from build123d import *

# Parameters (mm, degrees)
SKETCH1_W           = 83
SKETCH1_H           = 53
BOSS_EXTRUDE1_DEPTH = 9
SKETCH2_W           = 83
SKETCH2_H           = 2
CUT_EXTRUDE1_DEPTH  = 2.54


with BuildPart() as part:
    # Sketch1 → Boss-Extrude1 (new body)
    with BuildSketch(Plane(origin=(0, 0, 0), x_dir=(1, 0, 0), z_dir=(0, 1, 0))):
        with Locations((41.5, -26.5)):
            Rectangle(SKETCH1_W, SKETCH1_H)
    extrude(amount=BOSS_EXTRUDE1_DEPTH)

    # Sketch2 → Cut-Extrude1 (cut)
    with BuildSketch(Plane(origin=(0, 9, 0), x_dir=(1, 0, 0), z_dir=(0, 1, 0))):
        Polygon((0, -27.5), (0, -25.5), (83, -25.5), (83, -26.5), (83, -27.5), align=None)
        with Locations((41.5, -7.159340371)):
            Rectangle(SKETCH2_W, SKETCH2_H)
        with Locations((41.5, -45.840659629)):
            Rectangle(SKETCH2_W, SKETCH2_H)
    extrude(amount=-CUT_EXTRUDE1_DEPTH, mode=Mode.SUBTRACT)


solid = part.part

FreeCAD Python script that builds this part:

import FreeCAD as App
import Part
import Sketcher
from FreeCAD import Vector


def add_polygon(sketch, points):
    """Adds a closed chain of lines whose ends are joined by coincident constraints."""
    first, n = sketch.GeometryCount, len(points)
    for a, b in zip(points, points[1:] + points[:1]):
        sketch.addGeometry(Part.LineSegment(App.Vector(*a, 0), App.Vector(*b, 0)), False)
    for i in range(n):
        sketch.addConstraint(Sketcher.Constraint("Coincident", first + i, 2, first + (i + 1) % n, 1))

doc = App.newDocument("Part")
body = doc.addObject("PartDesign::Body", "Body")

sketch1 = doc.addObject("Sketcher::SketchObject", "Sketch")
body.addObject(sketch1)
sketch1.AttachmentSupport = (doc.XZ_Plane, [""])
sketch1.MapMode = "FlatFace"
add_polygon(sketch1, [(0, 0), (0, 53), (83, 53), (83, 0)])
sketch1.addConstraint(Sketcher.Constraint("Vertical", 0))
sketch1.addConstraint(Sketcher.Constraint("Horizontal", 1))
sketch1.addConstraint(Sketcher.Constraint("Vertical", 2))
sketch1.addConstraint(Sketcher.Constraint("Horizontal", 3))
sketch1.addConstraint(Sketcher.Constraint("Coincident", 3, 2, -1, 1))
sketch1.addConstraint(Sketcher.Constraint("DistanceX", 1, 1, 1, 2, 83.0))
sketch1.addConstraint(Sketcher.Constraint("DistanceY", 0, 1, 0, 2, 53.0))
pad1 = doc.addObject("PartDesign::Pad", "Pad")
body.addObject(pad1)
pad1.Profile = sketch1
pad1.Length = 9
pad1.Reversed = True

sketch2 = doc.addObject("Sketcher::SketchObject", "Sketch001")
body.addObject(sketch2)
sketch2.AttachmentSupport = (doc.XZ_Plane, [""])
sketch2.MapMode = "FlatFace"
sketch2.AttachmentOffset = App.Placement(Vector(0, 0, -9), App.Rotation())
add_polygon(sketch2, [(0, 25.5), (0, 27.5), (83, 27.5), (83, 25.5)])
add_polygon(sketch2, [(0, 6.15934), (0, 8.15934), (83, 8.15934), (83, 6.15934)])
add_polygon(sketch2, [(0, 44.84066), (0, 46.84066), (83, 46.84066), (83, 44.84066)])
sketch2.addConstraint(Sketcher.Constraint("Vertical", 0))
sketch2.addConstraint(Sketcher.Constraint("Horizontal", 1))
sketch2.addConstraint(Sketcher.Constraint("Vertical", 2))
sketch2.addConstraint(Sketcher.Constraint("Horizontal", 3))
sketch2.addConstraint(Sketcher.Constraint("Vertical", 4))
sketch2.addConstraint(Sketcher.Constraint("Horizontal", 5))
sketch2.addConstraint(Sketcher.Constraint("Vertical", 6))
sketch2.addConstraint(Sketcher.Constraint("Horizontal", 7))
sketch2.addConstraint(Sketcher.Constraint("Vertical", 8))
sketch2.addConstraint(Sketcher.Constraint("Horizontal", 9))
sketch2.addConstraint(Sketcher.Constraint("Vertical", 10))
sketch2.addConstraint(Sketcher.Constraint("Horizontal", 11))
sketch2.addConstraint(Sketcher.Constraint("PointOnObject", 0, 2, -2))
sketch2.addConstraint(Sketcher.Constraint("PointOnObject", 4, 2, -2))
sketch2.addConstraint(Sketcher.Constraint("PointOnObject", 8, 2, -2))
sketch2.addConstraint(Sketcher.Constraint("Vertical", 2, 2, 5, 2))
sketch2.addConstraint(Sketcher.Constraint("Vertical", 6, 2, 9, 2))
sketch2.addConstraint(Sketcher.Constraint("Equal", 2, 4))
sketch2.addConstraint(Sketcher.Constraint("Equal", 6, 8))
sketch2.addConstraint(Sketcher.Constraint("DistanceX", 1, 1, 1, 2, 83.0))
sketch2.addConstraint(Sketcher.Constraint("DistanceY", 0, 1, 0, 2, 2.0))
sketch2.addConstraint(Sketcher.Constraint("DistanceY", -1, 1, 0, 2, 27.5))
sketch2.addConstraint(Sketcher.Constraint("DistanceY", -1, 1, 4, 2, 8.15934))
sketch2.addConstraint(Sketcher.Constraint("DistanceY", -1, 1, 8, 2, 46.84066))
pocket1 = doc.addObject("PartDesign::Pocket", "Pocket")
body.addObject(pocket1)
pocket1.Profile = sketch2
pocket1.Length = 2.54
pocket1.Reversed = True

doc.recompute()
